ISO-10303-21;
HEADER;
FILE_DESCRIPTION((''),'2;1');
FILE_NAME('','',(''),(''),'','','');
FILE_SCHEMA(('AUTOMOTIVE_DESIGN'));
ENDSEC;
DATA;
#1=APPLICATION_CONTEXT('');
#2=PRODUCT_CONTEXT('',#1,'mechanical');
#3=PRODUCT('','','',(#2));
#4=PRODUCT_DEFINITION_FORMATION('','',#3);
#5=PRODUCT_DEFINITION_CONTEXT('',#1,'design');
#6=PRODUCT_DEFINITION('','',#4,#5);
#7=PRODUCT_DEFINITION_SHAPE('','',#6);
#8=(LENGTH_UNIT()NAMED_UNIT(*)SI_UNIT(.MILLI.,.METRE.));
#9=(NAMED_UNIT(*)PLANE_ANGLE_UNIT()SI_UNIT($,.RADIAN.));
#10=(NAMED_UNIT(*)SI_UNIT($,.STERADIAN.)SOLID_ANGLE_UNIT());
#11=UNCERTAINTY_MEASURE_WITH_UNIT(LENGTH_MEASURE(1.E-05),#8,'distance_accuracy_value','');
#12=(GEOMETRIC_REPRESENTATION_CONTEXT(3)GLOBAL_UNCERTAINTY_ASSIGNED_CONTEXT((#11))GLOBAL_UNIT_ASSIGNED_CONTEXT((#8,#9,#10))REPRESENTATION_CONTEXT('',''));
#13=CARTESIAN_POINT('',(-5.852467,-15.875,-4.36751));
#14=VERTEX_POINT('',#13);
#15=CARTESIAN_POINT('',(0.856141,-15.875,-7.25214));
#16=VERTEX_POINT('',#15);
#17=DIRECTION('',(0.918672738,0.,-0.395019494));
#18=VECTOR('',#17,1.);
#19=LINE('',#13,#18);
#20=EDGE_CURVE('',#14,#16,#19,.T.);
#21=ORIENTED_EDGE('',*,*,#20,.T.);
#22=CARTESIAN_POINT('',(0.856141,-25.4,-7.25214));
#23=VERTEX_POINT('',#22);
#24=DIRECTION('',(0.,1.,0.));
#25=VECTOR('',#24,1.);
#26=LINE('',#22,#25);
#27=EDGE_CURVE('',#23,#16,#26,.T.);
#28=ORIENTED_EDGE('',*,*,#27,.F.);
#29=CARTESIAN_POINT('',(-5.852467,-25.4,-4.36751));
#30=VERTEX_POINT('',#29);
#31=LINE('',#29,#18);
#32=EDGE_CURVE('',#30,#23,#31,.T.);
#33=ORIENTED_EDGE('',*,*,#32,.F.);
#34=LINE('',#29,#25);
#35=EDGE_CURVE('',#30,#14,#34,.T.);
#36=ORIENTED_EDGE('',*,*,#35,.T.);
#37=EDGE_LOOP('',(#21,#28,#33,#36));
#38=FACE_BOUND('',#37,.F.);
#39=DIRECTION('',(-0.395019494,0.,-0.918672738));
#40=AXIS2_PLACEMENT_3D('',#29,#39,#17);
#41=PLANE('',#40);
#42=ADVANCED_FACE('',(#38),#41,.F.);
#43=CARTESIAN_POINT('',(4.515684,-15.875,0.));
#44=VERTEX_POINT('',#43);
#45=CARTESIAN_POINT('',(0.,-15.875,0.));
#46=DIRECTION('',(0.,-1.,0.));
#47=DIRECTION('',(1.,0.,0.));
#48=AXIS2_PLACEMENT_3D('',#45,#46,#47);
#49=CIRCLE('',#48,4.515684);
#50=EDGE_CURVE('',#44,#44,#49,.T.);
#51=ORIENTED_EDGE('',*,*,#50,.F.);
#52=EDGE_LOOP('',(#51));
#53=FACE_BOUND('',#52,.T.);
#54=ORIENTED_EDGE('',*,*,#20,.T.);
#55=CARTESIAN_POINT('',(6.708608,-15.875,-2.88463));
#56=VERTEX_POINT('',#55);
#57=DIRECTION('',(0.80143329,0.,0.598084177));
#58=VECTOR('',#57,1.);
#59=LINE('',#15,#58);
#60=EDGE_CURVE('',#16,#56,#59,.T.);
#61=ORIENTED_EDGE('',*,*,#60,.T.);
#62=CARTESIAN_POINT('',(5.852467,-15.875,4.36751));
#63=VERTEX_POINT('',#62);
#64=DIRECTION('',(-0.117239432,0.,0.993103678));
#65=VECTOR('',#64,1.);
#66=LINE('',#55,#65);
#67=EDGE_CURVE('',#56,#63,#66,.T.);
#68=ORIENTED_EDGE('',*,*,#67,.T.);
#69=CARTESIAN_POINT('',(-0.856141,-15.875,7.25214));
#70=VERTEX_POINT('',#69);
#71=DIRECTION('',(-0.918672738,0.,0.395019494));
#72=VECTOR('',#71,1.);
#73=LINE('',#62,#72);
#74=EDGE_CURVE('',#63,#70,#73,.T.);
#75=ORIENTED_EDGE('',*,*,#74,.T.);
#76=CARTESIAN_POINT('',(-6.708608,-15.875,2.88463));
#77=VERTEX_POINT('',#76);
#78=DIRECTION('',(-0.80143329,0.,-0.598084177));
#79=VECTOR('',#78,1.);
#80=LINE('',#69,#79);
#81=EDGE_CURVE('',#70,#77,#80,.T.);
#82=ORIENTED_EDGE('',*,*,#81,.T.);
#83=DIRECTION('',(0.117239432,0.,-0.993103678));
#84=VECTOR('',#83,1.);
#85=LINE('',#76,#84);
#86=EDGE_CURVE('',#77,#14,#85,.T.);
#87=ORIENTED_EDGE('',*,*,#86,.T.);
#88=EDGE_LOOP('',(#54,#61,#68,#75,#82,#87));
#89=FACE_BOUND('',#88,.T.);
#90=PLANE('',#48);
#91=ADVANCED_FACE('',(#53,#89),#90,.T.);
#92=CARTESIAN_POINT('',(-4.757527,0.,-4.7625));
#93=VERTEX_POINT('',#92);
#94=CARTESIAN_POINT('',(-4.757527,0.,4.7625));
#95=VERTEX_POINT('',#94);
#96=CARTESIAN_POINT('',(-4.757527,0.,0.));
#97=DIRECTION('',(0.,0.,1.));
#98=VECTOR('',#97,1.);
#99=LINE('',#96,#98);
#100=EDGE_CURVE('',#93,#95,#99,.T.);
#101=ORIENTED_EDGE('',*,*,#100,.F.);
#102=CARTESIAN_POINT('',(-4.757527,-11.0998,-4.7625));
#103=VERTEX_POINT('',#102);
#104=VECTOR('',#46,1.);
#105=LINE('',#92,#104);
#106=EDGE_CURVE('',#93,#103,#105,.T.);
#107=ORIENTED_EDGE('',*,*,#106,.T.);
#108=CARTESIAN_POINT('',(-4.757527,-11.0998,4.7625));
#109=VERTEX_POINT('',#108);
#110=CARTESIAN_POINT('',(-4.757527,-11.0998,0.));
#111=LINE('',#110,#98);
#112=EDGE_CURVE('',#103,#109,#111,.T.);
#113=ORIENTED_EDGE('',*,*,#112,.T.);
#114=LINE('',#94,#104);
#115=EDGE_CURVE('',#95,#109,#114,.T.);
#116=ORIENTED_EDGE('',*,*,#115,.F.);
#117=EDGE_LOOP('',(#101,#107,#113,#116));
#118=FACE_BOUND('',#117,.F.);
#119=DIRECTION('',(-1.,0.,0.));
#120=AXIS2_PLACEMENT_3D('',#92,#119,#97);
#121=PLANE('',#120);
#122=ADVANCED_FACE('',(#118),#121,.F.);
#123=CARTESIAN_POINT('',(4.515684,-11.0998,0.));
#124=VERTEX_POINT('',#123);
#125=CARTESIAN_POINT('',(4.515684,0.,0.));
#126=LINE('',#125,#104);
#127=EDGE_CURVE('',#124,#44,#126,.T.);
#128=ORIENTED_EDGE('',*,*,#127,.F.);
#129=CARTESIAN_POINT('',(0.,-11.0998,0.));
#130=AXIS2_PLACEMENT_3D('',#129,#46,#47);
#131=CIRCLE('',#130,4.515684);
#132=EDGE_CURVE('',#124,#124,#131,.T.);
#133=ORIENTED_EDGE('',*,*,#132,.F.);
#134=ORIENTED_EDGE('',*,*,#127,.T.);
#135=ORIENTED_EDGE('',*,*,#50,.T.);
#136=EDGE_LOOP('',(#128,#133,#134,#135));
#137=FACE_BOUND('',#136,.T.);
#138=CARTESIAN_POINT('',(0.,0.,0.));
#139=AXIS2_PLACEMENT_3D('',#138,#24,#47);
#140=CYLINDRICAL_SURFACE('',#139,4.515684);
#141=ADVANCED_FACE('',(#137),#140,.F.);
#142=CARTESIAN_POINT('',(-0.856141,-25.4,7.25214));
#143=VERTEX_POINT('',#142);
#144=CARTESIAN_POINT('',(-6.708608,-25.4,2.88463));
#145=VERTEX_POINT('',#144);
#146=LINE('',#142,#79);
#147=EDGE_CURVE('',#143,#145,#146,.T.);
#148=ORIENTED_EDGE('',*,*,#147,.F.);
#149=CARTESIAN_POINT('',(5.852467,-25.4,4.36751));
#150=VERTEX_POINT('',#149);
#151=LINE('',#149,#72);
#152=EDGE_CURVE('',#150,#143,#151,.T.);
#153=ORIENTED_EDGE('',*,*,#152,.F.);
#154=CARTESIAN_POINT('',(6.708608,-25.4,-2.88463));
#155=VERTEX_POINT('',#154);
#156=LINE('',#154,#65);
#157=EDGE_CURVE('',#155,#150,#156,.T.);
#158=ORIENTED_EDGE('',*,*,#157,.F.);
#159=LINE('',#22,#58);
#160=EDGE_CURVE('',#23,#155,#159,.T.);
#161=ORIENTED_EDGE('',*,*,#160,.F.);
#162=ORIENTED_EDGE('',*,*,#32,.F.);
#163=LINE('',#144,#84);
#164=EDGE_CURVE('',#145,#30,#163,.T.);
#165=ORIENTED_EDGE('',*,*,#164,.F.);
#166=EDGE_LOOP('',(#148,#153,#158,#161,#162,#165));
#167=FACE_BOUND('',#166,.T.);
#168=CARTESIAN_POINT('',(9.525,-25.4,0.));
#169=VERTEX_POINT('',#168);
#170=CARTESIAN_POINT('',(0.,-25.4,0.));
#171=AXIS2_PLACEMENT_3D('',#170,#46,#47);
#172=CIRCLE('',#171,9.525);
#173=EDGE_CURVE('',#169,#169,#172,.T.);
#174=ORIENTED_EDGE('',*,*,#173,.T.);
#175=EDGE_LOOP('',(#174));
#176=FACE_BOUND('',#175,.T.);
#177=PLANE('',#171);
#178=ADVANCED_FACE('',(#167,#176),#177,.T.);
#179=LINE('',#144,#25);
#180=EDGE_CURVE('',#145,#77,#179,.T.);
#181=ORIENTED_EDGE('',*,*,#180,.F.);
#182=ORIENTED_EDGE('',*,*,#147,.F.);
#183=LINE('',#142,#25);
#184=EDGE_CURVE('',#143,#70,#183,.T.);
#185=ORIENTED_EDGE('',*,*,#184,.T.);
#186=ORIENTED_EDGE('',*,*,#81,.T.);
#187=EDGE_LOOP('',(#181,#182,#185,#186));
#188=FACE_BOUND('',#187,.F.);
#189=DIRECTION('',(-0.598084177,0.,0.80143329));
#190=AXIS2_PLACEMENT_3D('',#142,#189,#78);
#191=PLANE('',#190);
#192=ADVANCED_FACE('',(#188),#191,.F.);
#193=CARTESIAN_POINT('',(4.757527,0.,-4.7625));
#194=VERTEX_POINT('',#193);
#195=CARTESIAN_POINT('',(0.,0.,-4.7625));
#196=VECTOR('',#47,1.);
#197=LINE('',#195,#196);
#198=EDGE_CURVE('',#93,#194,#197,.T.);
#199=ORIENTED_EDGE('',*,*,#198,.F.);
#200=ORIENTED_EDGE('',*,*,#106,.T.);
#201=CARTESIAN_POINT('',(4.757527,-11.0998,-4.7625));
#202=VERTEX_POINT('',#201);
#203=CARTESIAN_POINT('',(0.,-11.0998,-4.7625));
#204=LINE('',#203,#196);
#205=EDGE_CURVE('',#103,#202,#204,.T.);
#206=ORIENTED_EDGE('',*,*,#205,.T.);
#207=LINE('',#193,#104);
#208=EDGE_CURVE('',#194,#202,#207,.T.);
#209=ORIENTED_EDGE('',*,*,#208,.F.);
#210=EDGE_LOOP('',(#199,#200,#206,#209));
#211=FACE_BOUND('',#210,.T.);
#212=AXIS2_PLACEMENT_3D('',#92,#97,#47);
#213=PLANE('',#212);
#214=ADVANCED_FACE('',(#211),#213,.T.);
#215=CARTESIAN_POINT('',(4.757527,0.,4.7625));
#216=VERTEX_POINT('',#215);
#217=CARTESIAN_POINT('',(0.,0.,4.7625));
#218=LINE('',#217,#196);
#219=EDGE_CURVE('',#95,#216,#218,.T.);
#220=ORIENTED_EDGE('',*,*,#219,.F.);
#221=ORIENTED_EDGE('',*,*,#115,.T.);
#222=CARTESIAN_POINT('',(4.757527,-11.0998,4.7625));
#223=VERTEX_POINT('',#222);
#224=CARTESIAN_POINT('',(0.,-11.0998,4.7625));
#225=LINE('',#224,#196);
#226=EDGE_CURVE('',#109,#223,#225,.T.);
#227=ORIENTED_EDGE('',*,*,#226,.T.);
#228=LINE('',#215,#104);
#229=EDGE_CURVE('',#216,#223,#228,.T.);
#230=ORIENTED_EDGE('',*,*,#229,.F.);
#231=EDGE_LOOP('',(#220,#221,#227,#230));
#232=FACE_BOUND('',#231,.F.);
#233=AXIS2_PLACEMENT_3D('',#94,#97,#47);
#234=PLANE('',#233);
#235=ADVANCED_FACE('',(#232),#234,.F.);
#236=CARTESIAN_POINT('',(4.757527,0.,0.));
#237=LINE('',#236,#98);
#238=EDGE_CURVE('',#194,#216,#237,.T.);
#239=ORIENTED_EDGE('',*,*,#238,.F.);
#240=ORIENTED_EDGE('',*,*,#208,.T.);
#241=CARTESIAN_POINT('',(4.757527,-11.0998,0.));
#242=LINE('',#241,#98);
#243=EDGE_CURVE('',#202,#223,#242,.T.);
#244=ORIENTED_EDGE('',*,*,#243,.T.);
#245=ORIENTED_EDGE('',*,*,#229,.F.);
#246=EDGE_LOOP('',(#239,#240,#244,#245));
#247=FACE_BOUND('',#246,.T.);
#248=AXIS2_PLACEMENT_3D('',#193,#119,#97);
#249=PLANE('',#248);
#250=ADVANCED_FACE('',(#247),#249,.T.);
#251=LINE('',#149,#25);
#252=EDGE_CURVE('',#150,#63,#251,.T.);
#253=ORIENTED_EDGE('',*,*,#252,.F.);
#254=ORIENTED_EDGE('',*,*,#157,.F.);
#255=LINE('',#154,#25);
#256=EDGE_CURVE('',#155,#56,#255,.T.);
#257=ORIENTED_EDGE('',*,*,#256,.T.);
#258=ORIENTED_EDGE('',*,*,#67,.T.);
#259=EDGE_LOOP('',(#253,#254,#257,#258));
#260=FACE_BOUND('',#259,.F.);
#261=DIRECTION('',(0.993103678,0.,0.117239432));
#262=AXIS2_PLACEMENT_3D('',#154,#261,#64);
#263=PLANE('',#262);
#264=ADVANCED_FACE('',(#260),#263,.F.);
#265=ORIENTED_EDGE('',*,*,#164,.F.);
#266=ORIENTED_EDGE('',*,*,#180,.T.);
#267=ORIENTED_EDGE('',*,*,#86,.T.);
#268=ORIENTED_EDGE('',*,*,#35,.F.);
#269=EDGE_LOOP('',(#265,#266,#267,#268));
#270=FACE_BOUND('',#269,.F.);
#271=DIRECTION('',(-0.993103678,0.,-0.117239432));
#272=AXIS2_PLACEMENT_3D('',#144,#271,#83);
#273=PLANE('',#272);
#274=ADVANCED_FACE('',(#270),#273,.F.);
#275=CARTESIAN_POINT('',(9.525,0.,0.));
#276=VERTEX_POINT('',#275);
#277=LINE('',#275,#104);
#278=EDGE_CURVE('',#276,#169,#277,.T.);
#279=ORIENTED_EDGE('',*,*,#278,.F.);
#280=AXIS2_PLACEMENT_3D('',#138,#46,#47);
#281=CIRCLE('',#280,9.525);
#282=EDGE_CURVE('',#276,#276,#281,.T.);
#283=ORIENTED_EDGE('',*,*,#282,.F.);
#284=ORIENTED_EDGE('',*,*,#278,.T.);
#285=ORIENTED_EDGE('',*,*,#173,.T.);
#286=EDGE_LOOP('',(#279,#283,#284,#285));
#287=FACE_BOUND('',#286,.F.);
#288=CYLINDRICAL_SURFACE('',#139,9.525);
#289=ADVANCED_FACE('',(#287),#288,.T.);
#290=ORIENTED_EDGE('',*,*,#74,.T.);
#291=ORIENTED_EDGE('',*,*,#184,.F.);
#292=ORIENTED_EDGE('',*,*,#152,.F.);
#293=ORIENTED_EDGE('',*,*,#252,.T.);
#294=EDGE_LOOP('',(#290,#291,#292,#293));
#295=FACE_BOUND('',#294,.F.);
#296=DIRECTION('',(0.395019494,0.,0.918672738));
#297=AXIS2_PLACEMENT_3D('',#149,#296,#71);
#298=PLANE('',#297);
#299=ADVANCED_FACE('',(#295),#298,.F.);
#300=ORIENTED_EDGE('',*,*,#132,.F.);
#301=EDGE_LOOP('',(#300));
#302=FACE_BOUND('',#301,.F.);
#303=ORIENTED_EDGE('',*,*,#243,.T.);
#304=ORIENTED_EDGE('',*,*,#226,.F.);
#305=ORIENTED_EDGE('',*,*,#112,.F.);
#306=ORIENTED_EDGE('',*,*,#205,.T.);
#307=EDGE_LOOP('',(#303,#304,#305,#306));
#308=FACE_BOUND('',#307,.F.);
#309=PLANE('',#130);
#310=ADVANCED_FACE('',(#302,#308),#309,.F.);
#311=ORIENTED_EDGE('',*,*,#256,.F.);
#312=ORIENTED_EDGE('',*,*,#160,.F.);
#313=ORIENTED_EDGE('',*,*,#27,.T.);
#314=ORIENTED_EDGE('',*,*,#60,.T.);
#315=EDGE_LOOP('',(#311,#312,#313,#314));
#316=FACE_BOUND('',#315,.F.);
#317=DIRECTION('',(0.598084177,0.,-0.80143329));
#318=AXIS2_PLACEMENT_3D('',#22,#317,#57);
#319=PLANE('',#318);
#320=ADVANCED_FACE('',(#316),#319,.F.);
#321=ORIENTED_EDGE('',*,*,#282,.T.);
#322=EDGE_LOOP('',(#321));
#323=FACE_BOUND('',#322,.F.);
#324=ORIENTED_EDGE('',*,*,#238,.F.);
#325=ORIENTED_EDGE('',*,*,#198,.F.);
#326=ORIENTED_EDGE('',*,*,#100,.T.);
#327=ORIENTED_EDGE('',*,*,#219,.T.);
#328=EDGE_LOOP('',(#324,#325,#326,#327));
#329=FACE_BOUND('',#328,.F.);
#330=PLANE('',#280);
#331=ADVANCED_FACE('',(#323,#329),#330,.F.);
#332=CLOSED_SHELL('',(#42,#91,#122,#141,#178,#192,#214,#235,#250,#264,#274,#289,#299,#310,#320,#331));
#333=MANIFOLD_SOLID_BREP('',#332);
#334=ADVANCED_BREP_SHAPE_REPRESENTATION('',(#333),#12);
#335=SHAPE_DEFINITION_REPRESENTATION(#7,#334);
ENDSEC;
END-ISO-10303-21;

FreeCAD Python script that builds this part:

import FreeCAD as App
import Part
import Sketcher
from FreeCAD import Vector
Q = App.Units.Quantity


def add_polygon(sketch, points):
    """Adds a closed chain of lines whose ends are joined by coincident constraints."""
    first, n = sketch.GeometryCount, len(points)
    for a, b in zip(points, points[1:] + points[:1]):
        sketch.addGeometry(Part.LineSegment(App.Vector(*a, 0), App.Vector(*b, 0)), False)
    for i in range(n):
        sketch.addConstraint(Sketcher.Constraint("Coincident", first + i, 2, first + (i + 1) % n, 1))

doc = App.newDocument("Part")
body = doc.addObject("PartDesign::Body", "Body")

sketch1 = body.newObject("Sketcher::SketchObject", "Sketch")
sketch1.AttachmentSupport = (doc.getObject("XZ_Plane"), [""])
sketch1.MapMode = "FlatFace"
sketch1.addGeometry(Part.Circle(Vector(0, 0, 0), Vector(0, 0, 1), 9.525), False)
sketch1.addConstraint(Sketcher.Constraint("Coincident", 0, 3, -1, 1))
sketch1.addConstraint(Sketcher.Constraint("Diameter", 0, Q("0.75 in")))
pad1 = body.newObject("PartDesign::Pad", "Pad")
pad1.Profile = sketch1
pad1.Length = Q("1 in")

sketch2 = body.newObject("Sketcher::SketchObject", "Sketch001")
sketch2.AttachmentSupport = (doc.getObject("XZ_Plane"), [""])
sketch2.MapMode = "FlatFace"
sketch2.addGeometry(Part.Circle(Vector(0, 0, 0), Vector(0, 0, 1), 4.515684), False)
sketch2.addConstraint(Sketcher.Constraint("Coincident", 0, 3, -1, 1))
sketch2.addConstraint(Sketcher.Constraint("Diameter", 0, Q("9.031368 mm")))
pocket1 = body.newObject("PartDesign::Pocket", "Pocket")
pocket1.Profile = sketch2
pocket1.Type = "ThroughAll"
pocket1.Reversed = True

sketch3 = body.newObject("Sketcher::SketchObject", "Sketch002")
sketch3.AttachmentSupport = (doc.getObject("XZ_Plane"), [""])
sketch3.MapMode = "FlatFace"
add_polygon(sketch3, [(-4.757527, 4.7625), (-4.757527, -4.7625), (4.757527, -4.7625), (4.757527, 4.7625)])
sketch3.addGeometry(Part.Circle(Vector(0, 0, 0), Vector(0, 0, 1), 4.515684), False)
sketch3.addConstraint(Sketcher.Constraint("Vertical", 0))
sketch3.addConstraint(Sketcher.Constraint("Horizontal", 1))
sketch3.addConstraint(Sketcher.Constraint("Vertical", 2))
sketch3.addConstraint(Sketcher.Constraint("Horizontal", 3))
sketch3.addConstraint(Sketcher.Constraint("Coincident", 4, 3, -1, 1))
sketch3.addConstraint(Sketcher.Constraint("Symmetric", 0, 2, 2, 2, -1, 1))
sketch3.addConstraint(Sketcher.Constraint("DistanceY", 0, 2, 0, 1, Q("0.375 in")))
sketch3.addConstraint(Sketcher.Constraint("Diameter", 4, Q("9.031368 mm")))
sketch3.addConstraint(Sketcher.Constraint("DistanceX", 1, 1, 1, 2, Q("9.515054 mm")))
pocket2 = body.newObject("PartDesign::Pocket", "Pocket001")
pocket2.Profile = sketch3
pocket2.Length = Q("0.437 in")
pocket2.Reversed = True

sketch4 = body.newObject("Sketcher::SketchObject", "Sketch003")
sketch4.AttachmentSupport = (doc.getObject("XZ_Plane"), [""])
sketch4.MapMode = "FlatFace"
sketch4.AttachmentOffset = App.Placement(Vector(0, 0, 1 * 25.4), App.Rotation())
add_polygon(sketch4, [(-0.856141, 7.25214), (-6.708608, 2.88463), (-5.852467, -4.36751), (0.856141, -7.25214), (6.708608, -2.88463), (5.852467, 4.36751)])
sketch4.addGeometry(Part.Circle(Vector(0, 0, 0), Vector(0, 0, 1), 4.515684), False)
sketch4.addConstraint(Sketcher.Constraint("Coincident", 6, 3, -1, 1))
sketch4.addConstraint(Sketcher.Constraint("Symmetric", 0, 2, 3, 2, -1, 1))
sketch4.addConstraint(Sketcher.Constraint("Symmetric", 1, 2, 4, 2, -1, 1))
sketch4.addConstraint(Sketcher.Constraint("Symmetric", 2, 2, 5, 2, -1, 1))
sketch4.addConstraint(Sketcher.Constraint("Equal", 0, 1))
sketch4.addConstraint(Sketcher.Constraint("Equal", 1, 2))
sketch4.addConstraint(Sketcher.Constraint("Distance", 0, Q("0.2875 in")))
sketch4.addConstraint(Sketcher.Constraint("Diameter", 6, Q("9.031368 mm")))
sketch4.addConstraint(Sketcher.Constraint("DistanceY", -1, 1, 0, 2, Q("2.88463 mm")))
sketch4.addConstraint(Sketcher.Constraint("DistanceY", 1, 2, -1, 1, Q("4.36751 mm")))
sketch4.addConstraint(Sketcher.Constraint("DistanceX", -1, 1, 2, 2, Q("0.856141 mm")))
pocket3 = body.newObject("PartDesign::Pocket", "Pocket002")
pocket3.Profile = sketch4
pocket3.Length = Q("0.375 in")

doc.recompute()
